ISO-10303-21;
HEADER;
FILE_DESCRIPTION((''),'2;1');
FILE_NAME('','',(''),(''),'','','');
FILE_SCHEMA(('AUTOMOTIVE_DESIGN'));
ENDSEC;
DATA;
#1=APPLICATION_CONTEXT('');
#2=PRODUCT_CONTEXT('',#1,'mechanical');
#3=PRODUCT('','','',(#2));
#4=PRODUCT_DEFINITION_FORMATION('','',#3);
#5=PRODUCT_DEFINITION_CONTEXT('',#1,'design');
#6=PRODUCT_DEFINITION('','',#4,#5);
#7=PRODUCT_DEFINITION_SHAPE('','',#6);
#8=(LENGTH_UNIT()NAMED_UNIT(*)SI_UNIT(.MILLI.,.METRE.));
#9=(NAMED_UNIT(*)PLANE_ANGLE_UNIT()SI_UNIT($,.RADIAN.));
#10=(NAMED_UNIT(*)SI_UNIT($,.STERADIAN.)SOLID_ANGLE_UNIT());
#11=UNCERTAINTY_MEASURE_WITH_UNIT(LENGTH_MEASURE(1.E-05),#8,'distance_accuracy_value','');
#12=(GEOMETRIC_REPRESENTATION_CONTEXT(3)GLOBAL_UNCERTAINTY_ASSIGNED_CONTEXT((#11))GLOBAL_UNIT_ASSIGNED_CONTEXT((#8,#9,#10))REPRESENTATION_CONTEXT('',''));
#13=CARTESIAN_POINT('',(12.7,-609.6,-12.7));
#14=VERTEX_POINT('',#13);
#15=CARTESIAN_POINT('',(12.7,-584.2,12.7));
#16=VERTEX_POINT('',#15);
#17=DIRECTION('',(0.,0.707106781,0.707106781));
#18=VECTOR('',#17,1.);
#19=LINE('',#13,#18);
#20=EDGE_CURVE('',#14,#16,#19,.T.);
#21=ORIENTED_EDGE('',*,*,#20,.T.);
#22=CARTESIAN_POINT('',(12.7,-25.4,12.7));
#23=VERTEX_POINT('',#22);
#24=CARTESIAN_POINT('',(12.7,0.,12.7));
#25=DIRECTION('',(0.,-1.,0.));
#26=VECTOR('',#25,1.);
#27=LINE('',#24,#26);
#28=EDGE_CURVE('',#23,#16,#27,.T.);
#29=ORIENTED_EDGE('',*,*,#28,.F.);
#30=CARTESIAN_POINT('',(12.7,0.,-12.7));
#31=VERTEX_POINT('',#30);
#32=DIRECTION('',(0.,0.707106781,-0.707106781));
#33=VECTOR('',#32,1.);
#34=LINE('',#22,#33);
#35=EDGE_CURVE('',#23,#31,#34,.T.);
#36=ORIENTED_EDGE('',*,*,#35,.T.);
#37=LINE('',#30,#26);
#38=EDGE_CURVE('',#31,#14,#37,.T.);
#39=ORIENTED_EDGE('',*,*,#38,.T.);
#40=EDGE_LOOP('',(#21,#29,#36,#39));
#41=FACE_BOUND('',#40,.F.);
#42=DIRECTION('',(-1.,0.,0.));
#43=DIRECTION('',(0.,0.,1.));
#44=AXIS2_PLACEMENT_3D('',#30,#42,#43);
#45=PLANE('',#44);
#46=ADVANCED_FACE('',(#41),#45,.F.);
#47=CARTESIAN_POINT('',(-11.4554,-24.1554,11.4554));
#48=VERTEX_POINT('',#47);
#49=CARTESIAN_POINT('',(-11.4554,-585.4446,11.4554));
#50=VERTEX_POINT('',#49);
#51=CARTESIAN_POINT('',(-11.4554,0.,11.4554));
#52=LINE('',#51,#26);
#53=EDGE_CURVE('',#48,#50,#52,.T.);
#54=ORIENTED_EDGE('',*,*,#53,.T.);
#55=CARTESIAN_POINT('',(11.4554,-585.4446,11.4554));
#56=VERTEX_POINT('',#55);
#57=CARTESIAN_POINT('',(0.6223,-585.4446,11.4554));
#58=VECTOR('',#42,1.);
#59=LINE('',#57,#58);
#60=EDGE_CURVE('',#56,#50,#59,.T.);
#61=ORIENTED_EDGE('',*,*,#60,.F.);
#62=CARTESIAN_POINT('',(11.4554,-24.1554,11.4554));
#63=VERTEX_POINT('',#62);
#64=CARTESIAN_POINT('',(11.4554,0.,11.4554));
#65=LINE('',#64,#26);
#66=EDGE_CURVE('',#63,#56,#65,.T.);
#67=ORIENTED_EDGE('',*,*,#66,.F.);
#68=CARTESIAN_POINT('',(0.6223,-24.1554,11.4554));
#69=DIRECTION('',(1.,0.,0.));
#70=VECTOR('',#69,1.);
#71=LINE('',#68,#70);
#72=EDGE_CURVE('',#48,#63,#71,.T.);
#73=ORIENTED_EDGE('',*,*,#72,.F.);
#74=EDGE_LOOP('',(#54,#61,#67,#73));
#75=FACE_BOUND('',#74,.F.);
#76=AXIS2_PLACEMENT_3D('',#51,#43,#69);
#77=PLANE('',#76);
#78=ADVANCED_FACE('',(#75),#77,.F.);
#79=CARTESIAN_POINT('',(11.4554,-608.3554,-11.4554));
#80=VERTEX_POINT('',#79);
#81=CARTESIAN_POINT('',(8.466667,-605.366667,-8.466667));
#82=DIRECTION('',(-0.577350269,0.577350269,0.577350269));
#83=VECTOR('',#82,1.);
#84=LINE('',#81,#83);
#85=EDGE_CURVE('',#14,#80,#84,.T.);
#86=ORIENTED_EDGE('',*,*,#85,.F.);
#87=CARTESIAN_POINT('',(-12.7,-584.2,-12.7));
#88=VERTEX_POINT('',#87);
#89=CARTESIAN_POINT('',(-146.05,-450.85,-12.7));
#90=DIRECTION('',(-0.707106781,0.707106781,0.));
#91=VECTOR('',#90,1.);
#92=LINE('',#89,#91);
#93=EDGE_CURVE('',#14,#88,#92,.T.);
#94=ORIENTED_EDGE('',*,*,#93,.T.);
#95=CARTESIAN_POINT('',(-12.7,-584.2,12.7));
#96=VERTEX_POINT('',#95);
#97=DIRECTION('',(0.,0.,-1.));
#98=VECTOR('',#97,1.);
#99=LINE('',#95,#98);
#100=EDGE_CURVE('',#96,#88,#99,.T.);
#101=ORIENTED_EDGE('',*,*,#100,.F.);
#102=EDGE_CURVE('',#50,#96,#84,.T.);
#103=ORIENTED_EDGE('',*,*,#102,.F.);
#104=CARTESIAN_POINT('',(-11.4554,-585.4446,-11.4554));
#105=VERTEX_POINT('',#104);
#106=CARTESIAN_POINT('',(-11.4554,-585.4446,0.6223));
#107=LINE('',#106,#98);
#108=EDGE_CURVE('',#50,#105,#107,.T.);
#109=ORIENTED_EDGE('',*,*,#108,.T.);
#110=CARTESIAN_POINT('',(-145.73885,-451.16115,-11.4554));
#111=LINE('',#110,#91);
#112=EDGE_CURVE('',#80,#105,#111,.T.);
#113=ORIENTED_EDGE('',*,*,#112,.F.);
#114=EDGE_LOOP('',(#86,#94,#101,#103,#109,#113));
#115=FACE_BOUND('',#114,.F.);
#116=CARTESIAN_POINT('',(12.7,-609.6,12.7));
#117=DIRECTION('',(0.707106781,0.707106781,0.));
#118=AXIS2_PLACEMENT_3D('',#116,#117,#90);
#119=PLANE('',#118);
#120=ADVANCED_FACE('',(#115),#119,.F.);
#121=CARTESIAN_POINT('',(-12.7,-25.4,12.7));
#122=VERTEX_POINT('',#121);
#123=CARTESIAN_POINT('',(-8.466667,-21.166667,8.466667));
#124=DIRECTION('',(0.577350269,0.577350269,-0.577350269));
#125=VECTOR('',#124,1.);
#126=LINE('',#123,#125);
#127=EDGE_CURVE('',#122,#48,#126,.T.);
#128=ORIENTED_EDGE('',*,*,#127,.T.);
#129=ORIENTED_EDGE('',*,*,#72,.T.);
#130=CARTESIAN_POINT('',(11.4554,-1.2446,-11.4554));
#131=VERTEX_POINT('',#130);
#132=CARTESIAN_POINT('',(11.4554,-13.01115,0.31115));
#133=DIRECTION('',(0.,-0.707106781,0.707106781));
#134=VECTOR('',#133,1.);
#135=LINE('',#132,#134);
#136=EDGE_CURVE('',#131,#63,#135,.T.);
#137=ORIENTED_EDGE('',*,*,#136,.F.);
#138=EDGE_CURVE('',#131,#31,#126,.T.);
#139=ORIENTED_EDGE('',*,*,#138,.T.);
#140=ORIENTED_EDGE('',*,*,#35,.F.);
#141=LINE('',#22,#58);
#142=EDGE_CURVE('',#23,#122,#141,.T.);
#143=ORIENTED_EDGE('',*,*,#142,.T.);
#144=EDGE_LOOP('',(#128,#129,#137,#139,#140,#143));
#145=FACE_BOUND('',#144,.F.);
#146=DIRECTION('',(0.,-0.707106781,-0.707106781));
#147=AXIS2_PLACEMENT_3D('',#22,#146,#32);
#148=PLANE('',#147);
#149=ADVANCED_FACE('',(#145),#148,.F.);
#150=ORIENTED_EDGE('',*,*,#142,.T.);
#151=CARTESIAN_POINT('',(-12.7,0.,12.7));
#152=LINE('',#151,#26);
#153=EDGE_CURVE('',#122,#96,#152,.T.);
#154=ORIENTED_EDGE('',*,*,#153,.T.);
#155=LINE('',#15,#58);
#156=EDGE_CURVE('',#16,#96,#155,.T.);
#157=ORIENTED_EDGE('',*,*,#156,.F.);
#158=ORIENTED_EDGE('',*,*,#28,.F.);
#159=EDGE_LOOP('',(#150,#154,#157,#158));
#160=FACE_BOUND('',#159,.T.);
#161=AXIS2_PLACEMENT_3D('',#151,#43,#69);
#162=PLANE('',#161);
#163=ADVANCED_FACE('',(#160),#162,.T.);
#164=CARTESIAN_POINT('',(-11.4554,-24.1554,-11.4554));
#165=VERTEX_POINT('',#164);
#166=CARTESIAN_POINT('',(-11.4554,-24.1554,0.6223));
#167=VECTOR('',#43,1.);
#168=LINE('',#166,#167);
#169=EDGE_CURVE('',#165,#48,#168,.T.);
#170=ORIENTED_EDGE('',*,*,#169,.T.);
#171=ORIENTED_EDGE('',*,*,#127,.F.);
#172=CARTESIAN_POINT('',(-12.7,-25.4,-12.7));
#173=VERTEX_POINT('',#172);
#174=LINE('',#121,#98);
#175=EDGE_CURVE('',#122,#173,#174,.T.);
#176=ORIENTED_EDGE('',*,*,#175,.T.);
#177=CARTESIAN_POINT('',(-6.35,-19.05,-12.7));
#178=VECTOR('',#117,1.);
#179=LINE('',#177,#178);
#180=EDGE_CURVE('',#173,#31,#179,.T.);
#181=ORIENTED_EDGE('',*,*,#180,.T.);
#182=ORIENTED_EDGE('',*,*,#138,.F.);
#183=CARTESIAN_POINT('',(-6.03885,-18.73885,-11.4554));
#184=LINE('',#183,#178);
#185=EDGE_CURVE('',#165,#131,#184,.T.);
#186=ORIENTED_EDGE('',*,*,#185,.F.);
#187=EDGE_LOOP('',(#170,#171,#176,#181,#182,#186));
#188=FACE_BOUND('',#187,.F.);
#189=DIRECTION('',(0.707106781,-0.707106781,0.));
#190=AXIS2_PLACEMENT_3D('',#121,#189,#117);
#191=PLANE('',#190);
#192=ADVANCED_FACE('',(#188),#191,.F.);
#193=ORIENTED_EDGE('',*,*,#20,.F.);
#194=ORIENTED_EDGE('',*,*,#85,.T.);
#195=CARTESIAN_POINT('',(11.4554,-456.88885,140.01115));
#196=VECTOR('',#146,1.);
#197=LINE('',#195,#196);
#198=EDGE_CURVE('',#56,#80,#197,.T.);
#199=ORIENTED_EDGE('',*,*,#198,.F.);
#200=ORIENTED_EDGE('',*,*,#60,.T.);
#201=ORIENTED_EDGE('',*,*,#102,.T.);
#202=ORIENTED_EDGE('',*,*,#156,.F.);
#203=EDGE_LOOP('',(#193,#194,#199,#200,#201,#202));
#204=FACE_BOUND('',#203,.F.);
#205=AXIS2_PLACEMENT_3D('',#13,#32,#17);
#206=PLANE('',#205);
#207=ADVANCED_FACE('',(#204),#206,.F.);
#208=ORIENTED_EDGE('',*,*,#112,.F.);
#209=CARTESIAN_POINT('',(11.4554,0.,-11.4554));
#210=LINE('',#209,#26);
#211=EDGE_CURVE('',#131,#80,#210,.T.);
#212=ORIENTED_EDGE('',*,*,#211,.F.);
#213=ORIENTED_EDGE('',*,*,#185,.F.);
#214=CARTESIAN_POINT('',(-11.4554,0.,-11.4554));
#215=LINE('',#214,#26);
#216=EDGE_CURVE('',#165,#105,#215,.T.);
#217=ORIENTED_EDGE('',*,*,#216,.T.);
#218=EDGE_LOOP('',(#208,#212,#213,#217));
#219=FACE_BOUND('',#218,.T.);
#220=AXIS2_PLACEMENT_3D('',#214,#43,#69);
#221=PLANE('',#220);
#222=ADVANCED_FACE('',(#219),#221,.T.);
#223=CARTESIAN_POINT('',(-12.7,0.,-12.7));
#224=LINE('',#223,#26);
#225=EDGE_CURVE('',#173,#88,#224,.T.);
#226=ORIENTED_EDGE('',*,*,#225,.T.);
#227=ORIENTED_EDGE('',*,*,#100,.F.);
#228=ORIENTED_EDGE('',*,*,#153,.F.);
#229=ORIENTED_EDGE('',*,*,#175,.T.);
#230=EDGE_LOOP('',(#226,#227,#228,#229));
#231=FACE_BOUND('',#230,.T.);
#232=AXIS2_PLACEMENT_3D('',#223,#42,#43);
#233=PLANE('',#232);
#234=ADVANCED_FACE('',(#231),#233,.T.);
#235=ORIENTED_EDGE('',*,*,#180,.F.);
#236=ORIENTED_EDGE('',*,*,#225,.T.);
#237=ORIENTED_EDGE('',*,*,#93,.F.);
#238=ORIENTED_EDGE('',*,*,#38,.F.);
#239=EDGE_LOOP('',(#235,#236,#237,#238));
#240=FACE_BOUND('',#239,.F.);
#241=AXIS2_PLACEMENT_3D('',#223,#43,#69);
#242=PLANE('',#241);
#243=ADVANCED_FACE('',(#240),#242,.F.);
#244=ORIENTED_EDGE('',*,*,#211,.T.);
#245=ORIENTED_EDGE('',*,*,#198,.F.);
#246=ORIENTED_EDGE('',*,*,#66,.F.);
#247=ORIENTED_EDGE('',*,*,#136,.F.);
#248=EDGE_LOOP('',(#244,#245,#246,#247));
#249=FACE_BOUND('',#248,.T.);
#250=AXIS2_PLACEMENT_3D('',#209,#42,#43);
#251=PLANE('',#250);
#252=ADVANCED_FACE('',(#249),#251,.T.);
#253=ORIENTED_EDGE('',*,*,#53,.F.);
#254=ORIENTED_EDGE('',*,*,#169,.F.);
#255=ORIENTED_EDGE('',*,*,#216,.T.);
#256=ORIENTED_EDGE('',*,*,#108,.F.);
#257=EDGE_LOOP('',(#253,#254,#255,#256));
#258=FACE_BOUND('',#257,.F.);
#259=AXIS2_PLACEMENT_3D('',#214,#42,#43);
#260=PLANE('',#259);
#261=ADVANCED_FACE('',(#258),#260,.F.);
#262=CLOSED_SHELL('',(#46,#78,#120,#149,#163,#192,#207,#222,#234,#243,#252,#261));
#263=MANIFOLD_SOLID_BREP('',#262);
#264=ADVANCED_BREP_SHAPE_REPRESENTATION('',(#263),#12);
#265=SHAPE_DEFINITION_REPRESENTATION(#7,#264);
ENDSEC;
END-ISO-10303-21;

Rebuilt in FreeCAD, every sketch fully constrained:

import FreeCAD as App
import Part
import Sketcher
from FreeCAD import Vector
Q = App.Units.Quantity

doc = App.newDocument("Part")
body = doc.addObject("PartDesign::Body", "Body")

sketch1 = doc.addObject("Sketcher::SketchObject", "Sketch")
body.addObject(sketch1)
sketch1.AttachmentSupport = (doc.XZ_Plane, [""])
sketch1.MapMode = "FlatFace"
sketch1.addGeometry(Part.LineSegment(Vector(-13, 13, 0), Vector(-13, -13, 0)), False)
sketch1.addGeometry(Part.LineSegment(Vector(-13, -13, 0), Vector(13, -13, 0)), False)
sketch1.addGeometry(Part.LineSegment(Vector(13, -13, 0), Vector(13, 13, 0)), False)
sketch1.addGeometry(Part.LineSegment(Vector(13, 13, 0), Vector(-13, 13, 0)), False)
sketch1.addGeometry(Part.LineSegment(Vector(11, -11, 0), Vector(-11, -11, 0)), False)
sketch1.addGeometry(Part.LineSegment(Vector(-11, -11, 0), Vector(-11, 11, 0)), False)
sketch1.addGeometry(Part.LineSegment(Vector(-11, 11, 0), Vector(11, 11, 0)), False)
sketch1.addGeometry(Part.LineSegment(Vector(11, 11, 0), Vector(11, -11, 0)), False)
sketch1.addConstraint(Sketcher.Constraint("Coincident", 0, 2, 1, 1))
sketch1.addConstraint(Sketcher.Constraint("Coincident", 1, 2, 2, 1))
sketch1.addConstraint(Sketcher.Constraint("Coincident", 2, 2, 3, 1))
sketch1.addConstraint(Sketcher.Constraint("Coincident", 3, 2, 0, 1))
sketch1.addConstraint(Sketcher.Constraint("Coincident", 4, 2, 5, 1))
sketch1.addConstraint(Sketcher.Constraint("Coincident", 5, 2, 6, 1))
sketch1.addConstraint(Sketcher.Constraint("Coincident", 6, 2, 7, 1))
sketch1.addConstraint(Sketcher.Constraint("Coincident", 7, 2, 4, 1))
sketch1.addConstraint(Sketcher.Constraint("Vertical", 0))
sketch1.addConstraint(Sketcher.Constraint("Horizontal", 1))
sketch1.addConstraint(Sketcher.Constraint("Vertical", 2))
sketch1.addConstraint(Sketcher.Constraint("Horizontal", 3))
sketch1.addConstraint(Sketcher.Constraint("Horizontal", 4))
sketch1.addConstraint(Sketcher.Constraint("Vertical", 5))
sketch1.addConstraint(Sketcher.Constraint("Horizontal", 6))
sketch1.addConstraint(Sketcher.Constraint("Vertical", 7))
sketch1.addConstraint(Sketcher.Constraint("Symmetric", 0, 2, 2, 2, -1, 1))
sketch1.addConstraint(Sketcher.Constraint("Symmetric", 4, 2, 6, 2, -1, 1))
sketch1.addConstraint(Sketcher.Constraint("Equal", 3, 0))
sketch1.addConstraint(Sketcher.Constraint("Equal", 6, 5))
sketch1.addConstraint(Sketcher.Constraint("DistanceX", 1, 1, 1, 2, Q("1 in")))
sketch1.addConstraint(Sketcher.Constraint("DistanceX", 4, 2, 4, 1, Q("0.902 in")))
pad1 = doc.addObject("PartDesign::Pad", "Pad")
body.addObject(pad1)
pad1.Profile = sketch1
pad1.Length = Q("24 in")

sketch2 = doc.addObject("Sketcher::SketchObject", "Sketch001")
body.addObject(sketch2)
sketch2.AttachmentSupport = (doc.XY_Plane, [""])
sketch2.MapMode = "FlatFace"
sketch2.AttachmentOffset = App.Placement(Vector(0, 0, 0.5 * 25.4), App.Rotation())
sketch2.addGeometry(Part.LineSegment(Vector(-13, -25, 0), Vector(13, 0, 0)), False)
sketch2.addGeometry(Part.LineSegment(Vector(13, 0, 0), Vector(-13, 0, 0)), False)
sketch2.addGeometry(Part.LineSegment(Vector(-13, 0, 0), Vector(-13, -25, 0)), False)
sketch2.addGeometry(Part.LineSegment(Vector(-13, -610, 0), Vector(13, -610, 0)), False)
sketch2.addGeometry(Part.LineSegment(Vector(13, -610, 0), Vector(-13, -584, 0)), False)
sketch2.addGeometry(Part.LineSegment(Vector(-13, -584, 0), Vector(-13, -610, 0)), False)
sketch2.addConstraint(Sketcher.Constraint("Coincident", 0, 2, 1, 1))
sketch2.addConstraint(Sketcher.Constraint("Coincident", 1, 2, 2, 1))
sketch2.addConstraint(Sketcher.Constraint("Coincident", 2, 2, 0, 1))
sketch2.addConstraint(Sketcher.Constraint("Coincident", 3, 2, 4, 1))
sketch2.addConstraint(Sketcher.Constraint("Coincident", 4, 2, 5, 1))
sketch2.addConstraint(Sketcher.Constraint("Coincident", 5, 2, 3, 1))
sketch2.addConstraint(Sketcher.Constraint("Horizontal", 1))
sketch2.addConstraint(Sketcher.Constraint("Vertical", 2))
sketch2.addConstraint(Sketcher.Constraint("Horizontal", 3))
sketch2.addConstraint(Sketcher.Constraint("Vertical", 5))
sketch2.addConstraint(Sketcher.Constraint("Symmetric", 0, 2, 1, 2, -1, 1))
sketch2.addConstraint(Sketcher.Constraint("Perpendicular", 0, 4))
sketch2.addConstraint(Sketcher.Constraint("Vertical", 0, 2, 3, 2))
sketch2.addConstraint(Sketcher.Constraint("Vertical", 2, 2, 4, 2))
sketch2.addConstraint(Sketcher.Constraint("Equal", 3, 2))
sketch2.addConstraint(Sketcher.Constraint("DistanceX", 1, 2, 1, 1, Q("1 in")))
sketch2.addConstraint(Sketcher.Constraint("DistanceY", 3, 2, -1, 1, Q("24 in")))
pocket1 = doc.addObject("PartDesign::Pocket", "Pocket")
body.addObject(pocket1)
pocket1.Profile = sketch2
pocket1.Type = "ThroughAll"

sketch3 = doc.addObject("Sketcher::SketchObject", "Sketch002")
body.addObject(sketch3)
sketch3.AttachmentSupport = (doc.YZ_Plane, [""])
sketch3.MapMode = "FlatFace"
sketch3.AttachmentOffset = App.Placement(Vector(0, 0, 0.5 * 25.4), App.Rotation())
sketch3.addGeometry(Part.LineSegment(Vector(-610, 13, 0), Vector(-610, -13, 0)), False)
sketch3.addGeometry(Part.LineSegment(Vector(-610, -13, 0), Vector(-584, 13, 0)), False)
sketch3.addGeometry(Part.LineSegment(Vector(-584, 13, 0), Vector(-610, 13, 0)), False)
sketch3.addGeometry(Part.LineSegment(Vector(-25, 13, 0), Vector(0, -13, 0)), False)
sketch3.addGeometry(Part.LineSegment(Vector(0, -13, 0), Vector(0, 13, 0)), False)
sketch3.addGeometry(Part.LineSegment(Vector(0, 13, 0), Vector(-25, 13, 0)), False)
sketch3.addConstraint(Sketcher.Constraint("Coincident", 0, 2, 1, 1))
sketch3.addConstraint(Sketcher.Constraint("Coincident", 1, 2, 2, 1))
sketch3.addConstraint(Sketcher.Constraint("Coincident", 2, 2, 0, 1))
sketch3.addConstraint(Sketcher.Constraint("Coincident", 3, 2, 4, 1))
sketch3.addConstraint(Sketcher.Constraint("Coincident", 4, 2, 5, 1))
sketch3.addConstraint(Sketcher.Constraint("Coincident", 5, 2, 3, 1))
sketch3.addConstraint(Sketcher.Constraint("Vertical", 0))
sketch3.addConstraint(Sketcher.Constraint("Horizontal", 2))
sketch3.addConstraint(Sketcher.Constraint("Vertical", 4))
sketch3.addConstraint(Sketcher.Constraint("Horizontal", 5))
sketch3.addConstraint(Sketcher.Constraint("Symmetric", 3, 2, 4, 2, -1, 1))
sketch3.addConstraint(Sketcher.Constraint("Perpendicular", 1, 3))
sketch3.addConstraint(Sketcher.Constraint("Horizontal", 0, 2, 3, 2))
sketch3.addConstraint(Sketcher.Constraint("Horizontal", 2, 2, 4, 2))
sketch3.addConstraint(Sketcher.Constraint("Equal", 2, 5))
sketch3.addConstraint(Sketcher.Constraint("DistanceX", 2, 2, 2, 1, Q("1 in")))
sketch3.addConstraint(Sketcher.Constraint("DistanceX", 0, 2, -1, 1, Q("24 in")))
pocket2 = doc.addObject("PartDesign::Pocket", "Pocket001")
body.addObject(pocket2)
pocket2.Profile = sketch3
pocket2.Type = "ThroughAll"

doc.recompute()
